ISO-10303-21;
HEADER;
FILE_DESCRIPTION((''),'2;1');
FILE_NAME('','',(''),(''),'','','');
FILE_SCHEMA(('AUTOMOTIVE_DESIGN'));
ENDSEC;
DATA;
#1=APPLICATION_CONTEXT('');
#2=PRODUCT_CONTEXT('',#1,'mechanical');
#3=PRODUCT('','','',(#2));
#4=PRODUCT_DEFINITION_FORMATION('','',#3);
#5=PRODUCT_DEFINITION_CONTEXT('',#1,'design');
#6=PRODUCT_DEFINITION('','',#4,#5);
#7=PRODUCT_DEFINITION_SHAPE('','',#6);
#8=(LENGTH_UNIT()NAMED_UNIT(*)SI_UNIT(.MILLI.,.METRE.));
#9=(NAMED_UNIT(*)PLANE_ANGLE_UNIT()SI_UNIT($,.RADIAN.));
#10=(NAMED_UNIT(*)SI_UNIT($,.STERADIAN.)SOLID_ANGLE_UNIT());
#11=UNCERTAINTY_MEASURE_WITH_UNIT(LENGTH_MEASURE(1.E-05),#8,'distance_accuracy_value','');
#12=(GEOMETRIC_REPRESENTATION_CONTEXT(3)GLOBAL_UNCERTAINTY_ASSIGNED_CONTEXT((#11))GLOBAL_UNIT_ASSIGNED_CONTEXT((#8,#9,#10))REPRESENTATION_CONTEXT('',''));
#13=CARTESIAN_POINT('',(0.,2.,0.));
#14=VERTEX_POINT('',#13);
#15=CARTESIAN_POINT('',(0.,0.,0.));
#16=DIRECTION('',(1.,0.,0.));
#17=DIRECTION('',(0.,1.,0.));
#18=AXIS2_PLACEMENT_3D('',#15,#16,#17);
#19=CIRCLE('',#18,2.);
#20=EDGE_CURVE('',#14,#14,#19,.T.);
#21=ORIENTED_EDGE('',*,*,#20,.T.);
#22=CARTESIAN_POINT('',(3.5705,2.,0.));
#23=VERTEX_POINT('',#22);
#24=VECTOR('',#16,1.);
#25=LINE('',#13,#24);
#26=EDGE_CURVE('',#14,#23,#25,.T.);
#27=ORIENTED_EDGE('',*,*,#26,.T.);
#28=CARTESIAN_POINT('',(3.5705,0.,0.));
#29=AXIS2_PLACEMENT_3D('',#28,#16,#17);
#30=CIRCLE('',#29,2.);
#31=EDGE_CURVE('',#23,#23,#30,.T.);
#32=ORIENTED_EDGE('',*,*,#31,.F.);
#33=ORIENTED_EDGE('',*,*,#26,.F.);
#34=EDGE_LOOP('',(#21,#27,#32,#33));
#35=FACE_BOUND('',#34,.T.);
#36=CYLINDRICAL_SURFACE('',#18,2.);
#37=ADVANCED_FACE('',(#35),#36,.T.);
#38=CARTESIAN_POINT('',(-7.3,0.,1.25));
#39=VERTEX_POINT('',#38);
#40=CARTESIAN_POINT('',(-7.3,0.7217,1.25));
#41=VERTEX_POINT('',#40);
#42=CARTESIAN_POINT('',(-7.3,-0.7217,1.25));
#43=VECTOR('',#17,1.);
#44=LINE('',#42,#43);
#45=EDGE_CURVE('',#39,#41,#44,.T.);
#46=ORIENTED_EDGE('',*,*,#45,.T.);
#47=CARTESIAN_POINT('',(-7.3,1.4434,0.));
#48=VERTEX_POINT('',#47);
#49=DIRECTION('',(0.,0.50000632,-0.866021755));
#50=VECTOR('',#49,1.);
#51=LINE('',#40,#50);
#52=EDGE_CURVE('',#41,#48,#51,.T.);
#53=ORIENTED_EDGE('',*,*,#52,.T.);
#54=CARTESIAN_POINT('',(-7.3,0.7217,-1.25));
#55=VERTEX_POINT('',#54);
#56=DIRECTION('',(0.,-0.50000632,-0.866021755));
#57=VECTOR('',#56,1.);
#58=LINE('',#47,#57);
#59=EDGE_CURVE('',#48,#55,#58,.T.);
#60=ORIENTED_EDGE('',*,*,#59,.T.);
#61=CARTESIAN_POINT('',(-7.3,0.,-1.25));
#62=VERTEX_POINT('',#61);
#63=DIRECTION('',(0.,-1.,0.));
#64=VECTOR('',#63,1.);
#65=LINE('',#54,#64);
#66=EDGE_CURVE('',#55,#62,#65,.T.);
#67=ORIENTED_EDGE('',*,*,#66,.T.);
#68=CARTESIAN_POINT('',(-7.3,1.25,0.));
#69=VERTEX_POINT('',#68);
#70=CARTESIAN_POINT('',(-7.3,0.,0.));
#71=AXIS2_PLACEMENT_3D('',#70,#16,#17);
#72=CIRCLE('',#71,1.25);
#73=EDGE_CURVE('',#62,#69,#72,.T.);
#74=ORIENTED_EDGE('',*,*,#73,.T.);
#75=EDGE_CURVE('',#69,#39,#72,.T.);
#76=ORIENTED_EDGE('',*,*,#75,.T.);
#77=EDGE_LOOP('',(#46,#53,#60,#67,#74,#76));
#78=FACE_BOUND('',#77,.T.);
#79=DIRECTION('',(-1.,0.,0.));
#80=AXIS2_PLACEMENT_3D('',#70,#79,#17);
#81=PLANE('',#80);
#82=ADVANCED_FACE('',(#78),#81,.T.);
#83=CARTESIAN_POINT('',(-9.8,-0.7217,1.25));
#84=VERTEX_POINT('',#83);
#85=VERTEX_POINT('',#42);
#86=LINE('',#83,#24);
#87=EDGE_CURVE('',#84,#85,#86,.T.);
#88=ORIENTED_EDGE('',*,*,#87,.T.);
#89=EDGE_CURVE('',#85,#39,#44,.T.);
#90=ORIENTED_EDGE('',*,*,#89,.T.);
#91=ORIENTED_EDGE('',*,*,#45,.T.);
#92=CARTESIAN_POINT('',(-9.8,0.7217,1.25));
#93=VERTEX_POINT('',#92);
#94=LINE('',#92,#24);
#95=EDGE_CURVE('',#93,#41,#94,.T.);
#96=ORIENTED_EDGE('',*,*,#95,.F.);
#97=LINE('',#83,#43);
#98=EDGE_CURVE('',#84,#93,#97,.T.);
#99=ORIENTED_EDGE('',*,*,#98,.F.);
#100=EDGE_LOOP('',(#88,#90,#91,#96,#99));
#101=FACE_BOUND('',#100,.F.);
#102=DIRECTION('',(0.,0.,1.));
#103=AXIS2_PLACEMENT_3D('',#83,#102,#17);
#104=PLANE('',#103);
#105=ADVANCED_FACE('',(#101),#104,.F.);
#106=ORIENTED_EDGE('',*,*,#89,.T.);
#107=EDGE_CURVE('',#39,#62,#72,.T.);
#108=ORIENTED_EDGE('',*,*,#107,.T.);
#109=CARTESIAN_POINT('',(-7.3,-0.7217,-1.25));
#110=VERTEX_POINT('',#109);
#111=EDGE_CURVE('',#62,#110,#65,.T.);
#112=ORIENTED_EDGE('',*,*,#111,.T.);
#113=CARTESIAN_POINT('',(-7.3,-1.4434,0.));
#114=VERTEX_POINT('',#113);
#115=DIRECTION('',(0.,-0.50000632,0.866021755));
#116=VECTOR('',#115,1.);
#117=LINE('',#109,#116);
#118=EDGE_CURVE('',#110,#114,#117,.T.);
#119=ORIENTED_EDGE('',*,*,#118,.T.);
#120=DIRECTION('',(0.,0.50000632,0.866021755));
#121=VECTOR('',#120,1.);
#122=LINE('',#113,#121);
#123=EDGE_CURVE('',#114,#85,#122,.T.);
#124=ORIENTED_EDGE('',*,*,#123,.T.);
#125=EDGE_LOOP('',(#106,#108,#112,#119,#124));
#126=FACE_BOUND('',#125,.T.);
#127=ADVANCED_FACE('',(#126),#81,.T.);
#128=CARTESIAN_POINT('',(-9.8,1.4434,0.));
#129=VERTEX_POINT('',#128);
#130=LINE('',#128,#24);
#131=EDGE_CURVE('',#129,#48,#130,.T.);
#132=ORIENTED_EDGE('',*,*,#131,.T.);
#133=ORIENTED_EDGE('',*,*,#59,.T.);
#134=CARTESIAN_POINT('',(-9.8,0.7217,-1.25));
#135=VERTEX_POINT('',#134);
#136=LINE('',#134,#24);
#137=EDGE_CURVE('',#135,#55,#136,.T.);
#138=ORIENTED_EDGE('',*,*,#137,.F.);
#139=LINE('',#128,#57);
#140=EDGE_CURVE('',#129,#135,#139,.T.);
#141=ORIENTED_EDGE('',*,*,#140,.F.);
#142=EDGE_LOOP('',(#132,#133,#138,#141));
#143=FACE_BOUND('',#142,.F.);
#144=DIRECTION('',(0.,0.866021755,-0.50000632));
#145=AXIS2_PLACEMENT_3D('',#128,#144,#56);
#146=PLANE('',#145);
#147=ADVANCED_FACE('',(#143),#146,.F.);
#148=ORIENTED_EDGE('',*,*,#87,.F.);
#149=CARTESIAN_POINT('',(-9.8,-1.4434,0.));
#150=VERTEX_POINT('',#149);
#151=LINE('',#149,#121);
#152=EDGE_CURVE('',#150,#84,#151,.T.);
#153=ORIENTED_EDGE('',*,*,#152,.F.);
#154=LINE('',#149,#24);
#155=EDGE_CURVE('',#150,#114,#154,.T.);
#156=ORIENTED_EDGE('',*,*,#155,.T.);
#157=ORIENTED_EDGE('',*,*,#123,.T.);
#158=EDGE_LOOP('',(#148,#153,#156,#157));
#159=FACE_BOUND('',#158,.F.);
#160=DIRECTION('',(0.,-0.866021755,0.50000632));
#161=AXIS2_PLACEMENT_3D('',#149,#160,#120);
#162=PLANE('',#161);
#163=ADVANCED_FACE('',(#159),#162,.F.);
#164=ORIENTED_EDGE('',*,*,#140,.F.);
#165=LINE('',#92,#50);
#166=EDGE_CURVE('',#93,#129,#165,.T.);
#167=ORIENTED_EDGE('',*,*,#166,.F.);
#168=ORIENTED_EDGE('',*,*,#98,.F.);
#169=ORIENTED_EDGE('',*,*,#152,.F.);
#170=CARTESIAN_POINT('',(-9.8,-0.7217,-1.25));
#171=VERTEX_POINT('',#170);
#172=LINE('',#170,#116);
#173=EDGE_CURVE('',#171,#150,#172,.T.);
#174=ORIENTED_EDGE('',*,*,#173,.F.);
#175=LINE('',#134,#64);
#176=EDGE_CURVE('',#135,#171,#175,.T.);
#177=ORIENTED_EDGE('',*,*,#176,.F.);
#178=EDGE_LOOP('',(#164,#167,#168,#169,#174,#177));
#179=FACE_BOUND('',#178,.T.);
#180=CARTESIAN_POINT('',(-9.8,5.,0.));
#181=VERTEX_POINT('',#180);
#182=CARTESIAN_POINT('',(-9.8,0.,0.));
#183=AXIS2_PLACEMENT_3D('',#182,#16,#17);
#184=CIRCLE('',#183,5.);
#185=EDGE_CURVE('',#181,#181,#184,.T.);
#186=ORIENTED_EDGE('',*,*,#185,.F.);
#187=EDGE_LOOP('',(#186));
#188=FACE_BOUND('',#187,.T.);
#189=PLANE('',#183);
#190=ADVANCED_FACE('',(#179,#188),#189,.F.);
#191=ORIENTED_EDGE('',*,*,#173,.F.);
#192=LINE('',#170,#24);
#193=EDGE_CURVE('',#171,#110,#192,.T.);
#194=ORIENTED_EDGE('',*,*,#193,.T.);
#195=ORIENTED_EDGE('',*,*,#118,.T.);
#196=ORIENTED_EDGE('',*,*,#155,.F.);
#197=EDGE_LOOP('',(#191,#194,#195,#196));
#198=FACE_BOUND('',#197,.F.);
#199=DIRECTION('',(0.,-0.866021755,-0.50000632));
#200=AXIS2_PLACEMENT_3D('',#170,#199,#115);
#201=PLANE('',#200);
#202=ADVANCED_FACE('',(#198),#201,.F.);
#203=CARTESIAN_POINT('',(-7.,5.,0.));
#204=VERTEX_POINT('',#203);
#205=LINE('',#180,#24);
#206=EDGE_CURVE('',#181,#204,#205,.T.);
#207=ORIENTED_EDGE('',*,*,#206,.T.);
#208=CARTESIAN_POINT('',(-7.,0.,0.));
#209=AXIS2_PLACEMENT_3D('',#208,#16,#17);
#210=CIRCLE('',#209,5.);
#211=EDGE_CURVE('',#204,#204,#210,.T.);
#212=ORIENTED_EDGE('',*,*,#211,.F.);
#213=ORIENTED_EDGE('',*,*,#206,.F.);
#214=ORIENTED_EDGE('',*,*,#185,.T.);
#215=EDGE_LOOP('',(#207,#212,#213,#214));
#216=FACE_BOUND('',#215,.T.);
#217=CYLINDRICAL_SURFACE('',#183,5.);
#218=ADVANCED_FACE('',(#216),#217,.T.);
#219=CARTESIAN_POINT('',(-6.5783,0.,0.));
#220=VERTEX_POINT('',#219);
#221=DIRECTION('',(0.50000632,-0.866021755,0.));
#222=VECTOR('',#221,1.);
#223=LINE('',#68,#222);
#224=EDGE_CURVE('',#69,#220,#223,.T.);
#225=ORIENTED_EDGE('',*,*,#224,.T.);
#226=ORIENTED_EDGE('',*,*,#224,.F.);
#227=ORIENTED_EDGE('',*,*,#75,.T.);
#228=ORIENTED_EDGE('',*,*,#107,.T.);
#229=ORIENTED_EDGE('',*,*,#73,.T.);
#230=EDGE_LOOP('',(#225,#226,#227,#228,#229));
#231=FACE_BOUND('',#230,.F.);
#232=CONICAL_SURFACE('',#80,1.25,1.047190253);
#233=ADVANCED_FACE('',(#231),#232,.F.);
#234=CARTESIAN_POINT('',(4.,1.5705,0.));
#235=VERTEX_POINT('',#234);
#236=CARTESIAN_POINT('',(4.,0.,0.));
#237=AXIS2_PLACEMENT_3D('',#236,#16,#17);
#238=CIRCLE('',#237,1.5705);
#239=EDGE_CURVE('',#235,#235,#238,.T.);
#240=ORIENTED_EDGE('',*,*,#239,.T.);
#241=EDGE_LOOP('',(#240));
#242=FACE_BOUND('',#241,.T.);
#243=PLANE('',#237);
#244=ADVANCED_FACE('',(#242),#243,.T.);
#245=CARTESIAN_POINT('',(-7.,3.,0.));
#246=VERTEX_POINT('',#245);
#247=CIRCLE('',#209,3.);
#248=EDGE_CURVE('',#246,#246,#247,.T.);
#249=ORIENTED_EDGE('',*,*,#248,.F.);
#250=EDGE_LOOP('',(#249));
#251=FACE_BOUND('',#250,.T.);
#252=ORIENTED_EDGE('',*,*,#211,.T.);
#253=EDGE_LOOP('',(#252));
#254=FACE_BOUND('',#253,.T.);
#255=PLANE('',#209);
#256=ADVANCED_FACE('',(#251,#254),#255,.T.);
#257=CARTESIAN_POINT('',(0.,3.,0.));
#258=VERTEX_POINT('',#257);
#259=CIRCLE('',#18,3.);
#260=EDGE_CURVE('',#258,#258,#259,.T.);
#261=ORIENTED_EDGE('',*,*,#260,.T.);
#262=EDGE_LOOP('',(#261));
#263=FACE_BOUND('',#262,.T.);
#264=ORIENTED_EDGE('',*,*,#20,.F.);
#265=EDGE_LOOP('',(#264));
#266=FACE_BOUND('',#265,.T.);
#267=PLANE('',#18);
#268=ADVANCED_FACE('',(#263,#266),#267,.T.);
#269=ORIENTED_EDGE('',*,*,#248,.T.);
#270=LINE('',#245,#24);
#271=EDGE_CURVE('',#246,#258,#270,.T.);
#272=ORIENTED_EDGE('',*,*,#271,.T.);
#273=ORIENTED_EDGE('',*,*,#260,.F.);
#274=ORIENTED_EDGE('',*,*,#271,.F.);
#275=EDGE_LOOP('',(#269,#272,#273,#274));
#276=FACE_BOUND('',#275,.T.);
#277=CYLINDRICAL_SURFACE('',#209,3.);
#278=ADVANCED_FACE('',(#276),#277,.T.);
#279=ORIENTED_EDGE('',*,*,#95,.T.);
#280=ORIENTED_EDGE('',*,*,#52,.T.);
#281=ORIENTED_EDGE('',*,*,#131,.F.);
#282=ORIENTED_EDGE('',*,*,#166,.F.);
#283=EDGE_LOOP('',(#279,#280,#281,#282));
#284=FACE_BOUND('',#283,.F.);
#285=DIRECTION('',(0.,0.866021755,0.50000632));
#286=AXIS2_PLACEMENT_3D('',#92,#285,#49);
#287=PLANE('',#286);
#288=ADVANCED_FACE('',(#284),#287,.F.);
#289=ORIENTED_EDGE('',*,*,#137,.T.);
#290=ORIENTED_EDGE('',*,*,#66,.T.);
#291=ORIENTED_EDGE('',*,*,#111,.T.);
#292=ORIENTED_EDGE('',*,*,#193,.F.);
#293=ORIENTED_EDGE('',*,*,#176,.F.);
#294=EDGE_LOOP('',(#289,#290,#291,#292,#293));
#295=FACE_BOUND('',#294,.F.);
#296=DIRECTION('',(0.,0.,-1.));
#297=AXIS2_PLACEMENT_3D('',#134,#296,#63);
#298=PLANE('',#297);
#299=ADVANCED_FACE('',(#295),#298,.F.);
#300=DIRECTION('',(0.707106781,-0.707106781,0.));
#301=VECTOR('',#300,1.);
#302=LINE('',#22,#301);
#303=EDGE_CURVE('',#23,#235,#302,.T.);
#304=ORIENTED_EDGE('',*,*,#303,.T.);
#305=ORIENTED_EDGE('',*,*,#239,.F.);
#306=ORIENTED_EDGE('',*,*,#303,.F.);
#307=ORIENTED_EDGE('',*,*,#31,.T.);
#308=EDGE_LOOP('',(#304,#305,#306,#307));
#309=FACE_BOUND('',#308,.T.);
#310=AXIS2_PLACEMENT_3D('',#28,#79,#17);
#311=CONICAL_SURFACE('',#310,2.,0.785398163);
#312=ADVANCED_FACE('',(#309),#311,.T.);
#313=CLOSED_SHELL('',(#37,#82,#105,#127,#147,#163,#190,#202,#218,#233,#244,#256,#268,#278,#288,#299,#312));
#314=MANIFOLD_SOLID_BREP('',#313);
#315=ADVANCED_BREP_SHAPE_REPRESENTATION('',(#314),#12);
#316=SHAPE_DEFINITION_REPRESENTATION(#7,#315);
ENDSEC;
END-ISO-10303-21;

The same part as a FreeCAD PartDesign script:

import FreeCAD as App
import Part
import Sketcher
from FreeCAD import Vector
Q = App.Units.Quantity

doc = App.newDocument("Part")
params = doc.addObject("Spreadsheet::Sheet", "Params")
for row, (alias, value) in enumerate([
    ("sketch1_width", "7 mm"),
    ("sketch1_height", "1 mm"),
    ("sketch1_height2", "2 mm"),
    ("sketch1_height3", "5 mm"),
    ("sketch1_width2", "13.8 mm"),
    ("revolution_angle", "360 deg"),
    ("pocket1_length", "2.5 mm"),
    ("sketch3_height", "1.25 mm"),
    ("groove_angle", "360 deg"),
], start=1):
    params.set(f"A{row}", alias)
    params.set(f"B{row}", "=" + value)
    params.setAlias(f"B{row}", alias)

body = doc.addObject("PartDesign::Body", "Body")

sketch1 = body.newObject("Sketcher::SketchObject", "Sketch")
sketch1.AttachmentSupport = (doc.getObject("XY_Plane"), [""])
sketch1.MapMode = "FlatFace"
sketch1.addGeometry(Part.LineSegment(Vector(-9.8, 0, 0), Vector(4, 0, 0)), False)
sketch1.addGeometry(Part.LineSegment(Vector(4, 0, 0), Vector(4, 1.5705, 0)), False)
sketch1.addGeometry(Part.LineSegment(Vector(4, 1.5705, 0), Vector(3.5705, 2, 0)), False)
sketch1.addGeometry(Part.LineSegment(Vector(3.5705, 2, 0), Vector(0, 2, 0)), False)
sketch1.addGeometry(Part.LineSegment(Vector(0, 2, 0), Vector(0, 3, 0)), False)
sketch1.addGeometry(Part.LineSegment(Vector(0, 3, 0), Vector(-7, 3, 0)), False)
sketch1.addGeometry(Part.LineSegment(Vector(-7, 3, 0), Vector(-7, 5, 0)), False)
sketch1.addGeometry(Part.LineSegment(Vector(-7, 5, 0), Vector(-9.8, 5, 0)), False)
sketch1.addGeometry(Part.LineSegment(Vector(-9.8, 5, 0), Vector(-9.8, 0, 0)), False)
sketch1.addConstraint(Sketcher.Constraint("Coincident", 0, 2, 1, 1))
sketch1.addConstraint(Sketcher.Constraint("Coincident", 1, 2, 2, 1))
sketch1.addConstraint(Sketcher.Constraint("Coincident", 2, 2, 3, 1))
sketch1.addConstraint(Sketcher.Constraint("Coincident", 3, 2, 4, 1))
sketch1.addConstraint(Sketcher.Constraint("Coincident", 4, 2, 5, 1))
sketch1.addConstraint(Sketcher.Constraint("Coincident", 5, 2, 6, 1))
sketch1.addConstraint(Sketcher.Constraint("Coincident", 6, 2, 7, 1))
sketch1.addConstraint(Sketcher.Constraint("Coincident", 7, 2, 8, 1))
sketch1.addConstraint(Sketcher.Constraint("Coincident", 8, 2, 0, 1))
sketch1.addConstraint(Sketcher.Constraint("Horizontal", 0))
sketch1.addConstraint(Sketcher.Constraint("Vertical", 1))
sketch1.addConstraint(Sketcher.Constraint("Horizontal", 3))
sketch1.addConstraint(Sketcher.Constraint("Vertical", 4))
sketch1.addConstraint(Sketcher.Constraint("Horizontal", 5))
sketch1.addConstraint(Sketcher.Constraint("Vertical", 6))
sketch1.addConstraint(Sketcher.Constraint("Horizontal", 7))
sketch1.addConstraint(Sketcher.Constraint("Vertical", 8))
sketch1.addConstraint(Sketcher.Constraint("PointOnObject", 0, 2, -1))
sketch1.addConstraint(Sketcher.Constraint("PointOnObject", 3, 2, -2))
sketch1.addConstraint(Sketcher.Constraint("DistanceX", 5, 2, 5, 1, Q("7 mm")))
sketch1.addConstraint(Sketcher.Constraint("DistanceY", 4, 1, 4, 2, Q("1 mm")))
sketch1.addConstraint(Sketcher.Constraint("DistanceY", 6, 1, 6, 2, Q("2 mm")))
sketch1.addConstraint(Sketcher.Constraint("DistanceY", 8, 2, 8, 1, Q("5 mm")))
sketch1.addConstraint(Sketcher.Constraint("Angle", 2, Q("135 deg")))
sketch1.addConstraint(Sketcher.Constraint("DistanceX", 0, 1, 0, 2, Q("13.8 mm")))
sketch1.addConstraint(Sketcher.Constraint("DistanceX", 7, 2, 7, 1, Q("2.8 mm")))
sketch1.addConstraint(Sketcher.Constraint("DistanceX", 3, 2, 3, 1, Q("3.5705 mm")))
sketch1.setExpression("Constraints[19]", "Params.sketch1_width")
sketch1.setExpression("Constraints[20]", "Params.sketch1_height")
sketch1.setExpression("Constraints[21]", "Params.sketch1_height2")
sketch1.setExpression("Constraints[22]", "Params.sketch1_height3")
sketch1.setExpression("Constraints[24]", "Params.sketch1_width2")
revolution = body.newObject("PartDesign::Revolution", "Revolution")
revolution.Profile = sketch1
revolution.ReferenceAxis = (sketch1, ["H_Axis"])
revolution.setExpression("Angle", "Params.revolution_angle")

sketch2 = body.newObject("Sketcher::SketchObject", "Sketch001")
sketch2.AttachmentSupport = (doc.getObject("YZ_Plane"), [""])
sketch2.MapMode = "FlatFace"
sketch2.AttachmentOffset = App.Placement(Vector(0, 0, -9.8), App.Rotation())
sketch2.addGeometry(Part.LineSegment(Vector(-0.7217, -1.25, 0), Vector(-1.4434, 0, 0)), False)
sketch2.addGeometry(Part.LineSegment(Vector(-1.4434, 0, 0), Vector(-0.7217, 1.25, 0)), False)
sketch2.addGeometry(Part.LineSegment(Vector(-0.7217, 1.25, 0), Vector(0.7217, 1.25, 0)), False)
sketch2.addGeometry(Part.LineSegment(Vector(0.7217, 1.25, 0), Vector(1.4434, 0, 0)), False)
sketch2.addGeometry(Part.LineSegment(Vector(1.4434, 0, 0), Vector(0.7217, -1.25, 0)), False)
sketch2.addGeometry(Part.LineSegment(Vector(0.7217, -1.25, 0), Vector(-0.7217, -1.25, 0)), False)
sketch2.addConstraint(Sketcher.Constraint("Coincident", 0, 2, 1, 1))
sketch2.addConstraint(Sketcher.Constraint("Coincident", 1, 2, 2, 1))
sketch2.addConstraint(Sketcher.Constraint("Coincident", 2, 2, 3, 1))
sketch2.addConstraint(Sketcher.Constraint("Coincident", 3, 2, 4, 1))
sketch2.addConstraint(Sketcher.Constraint("Coincident", 4, 2, 5, 1))
sketch2.addConstraint(Sketcher.Constraint("Coincident", 5, 2, 0, 1))
sketch2.addConstraint(Sketcher.Constraint("Horizontal", 2))
sketch2.addConstraint(Sketcher.Constraint("Horizontal", 5))
sketch2.addConstraint(Sketcher.Constraint("Symmetric", 0, 2, 3, 2, -1, 1))
sketch2.addConstraint(Sketcher.Constraint("Symmetric", 1, 2, 4, 2, -1, 1))
sketch2.addConstraint(Sketcher.Constraint("PointOnObject", 0, 2, -1))
sketch2.addConstraint(Sketcher.Constraint("Parallel", 0, 3))
sketch2.addConstraint(Sketcher.Constraint("Vertical", 2, 2, 4, 2))
sketch2.addConstraint(Sketcher.Constraint("Angle", 0, Q("120.0004 deg")))
sketch2.addConstraint(Sketcher.Constraint("DistanceY", 4, 2, 2, 2, Q("2.5 mm")))
sketch2.addConstraint(Sketcher.Constraint("DistanceX", 2, 1, 2, 2, Q("1.4434 mm")))
pocket1 = body.newObject("PartDesign::Pocket", "Pocket")
pocket1.Profile = sketch2
pocket1.setExpression("Length", "Params.pocket1_length")
pocket1.Reversed = True

sketch3 = body.newObject("Sketcher::SketchObject", "Sketch002")
sketch3.AttachmentSupport = (doc.getObject("XY_Plane"), [""])
sketch3.MapMode = "FlatFace"
sketch3.addGeometry(Part.LineSegment(Vector(-7.3, 0, 0), Vector(-6.5783, 0, 0)), False)
sketch3.addGeometry(Part.LineSegment(Vector(-6.5783, 0, 0), Vector(-7.3, 1.25, 0)), False)
sketch3.addGeometry(Part.LineSegment(Vector(-7.3, 1.25, 0), Vector(-7.3, 0, 0)), False)
sketch3.addConstraint(Sketcher.Constraint("Coincident", 0, 2, 1, 1))
sketch3.addConstraint(Sketcher.Constraint("Coincident", 1, 2, 2, 1))
sketch3.addConstraint(Sketcher.Constraint("Coincident", 2, 2, 0, 1))
sketch3.addConstraint(Sketcher.Constraint("Horizontal", 0))
sketch3.addConstraint(Sketcher.Constraint("Vertical", 2))
sketch3.addConstraint(Sketcher.Constraint("PointOnObject", 0, 2, -1))
sketch3.addConstraint(Sketcher.Constraint("Angle", 1, Q("120.0004 deg")))
sketch3.addConstraint(Sketcher.Constraint("DistanceY", 2, 2, 2, 1, Q("1.25 mm")))
sketch3.addConstraint(Sketcher.Constraint("DistanceX", 1, 2, -1, 1, Q("7.3 mm")))
sketch3.setExpression("Constraints[7]", "Params.sketch3_height")
groove = body.newObject("PartDesign::Groove", "Groove")
groove.Profile = sketch3
groove.ReferenceAxis = (sketch3, ["H_Axis"])
groove.setExpression("Angle", "Params.groove_angle")

doc.recompute()
